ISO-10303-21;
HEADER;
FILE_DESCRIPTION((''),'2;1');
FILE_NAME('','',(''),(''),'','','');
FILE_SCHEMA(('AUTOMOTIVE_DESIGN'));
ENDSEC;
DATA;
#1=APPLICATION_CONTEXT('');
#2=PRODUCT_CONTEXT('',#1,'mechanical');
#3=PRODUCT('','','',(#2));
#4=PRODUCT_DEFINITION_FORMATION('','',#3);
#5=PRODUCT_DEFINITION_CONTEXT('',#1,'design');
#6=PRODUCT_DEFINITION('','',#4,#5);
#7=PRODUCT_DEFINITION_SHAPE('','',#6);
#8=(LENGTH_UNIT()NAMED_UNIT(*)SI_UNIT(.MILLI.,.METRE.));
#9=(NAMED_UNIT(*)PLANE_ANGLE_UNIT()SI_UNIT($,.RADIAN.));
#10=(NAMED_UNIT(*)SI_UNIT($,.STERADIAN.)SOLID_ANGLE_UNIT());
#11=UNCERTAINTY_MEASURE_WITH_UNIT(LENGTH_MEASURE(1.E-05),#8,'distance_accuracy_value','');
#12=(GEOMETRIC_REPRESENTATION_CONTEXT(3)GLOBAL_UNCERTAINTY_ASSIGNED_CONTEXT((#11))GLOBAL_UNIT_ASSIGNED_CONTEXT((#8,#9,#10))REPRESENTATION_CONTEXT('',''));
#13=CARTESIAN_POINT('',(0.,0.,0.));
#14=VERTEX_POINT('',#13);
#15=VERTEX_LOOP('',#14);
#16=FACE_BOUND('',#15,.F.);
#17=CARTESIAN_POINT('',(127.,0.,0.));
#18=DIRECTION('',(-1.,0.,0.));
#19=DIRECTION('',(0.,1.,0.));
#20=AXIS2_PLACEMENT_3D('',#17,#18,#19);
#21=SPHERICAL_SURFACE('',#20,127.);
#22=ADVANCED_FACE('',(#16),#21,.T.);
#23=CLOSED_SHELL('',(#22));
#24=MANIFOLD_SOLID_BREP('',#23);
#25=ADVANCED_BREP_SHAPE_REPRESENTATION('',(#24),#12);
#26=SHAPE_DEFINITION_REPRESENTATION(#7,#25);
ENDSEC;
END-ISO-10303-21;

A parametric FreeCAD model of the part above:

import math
import FreeCAD as App
import Part
import Sketcher
Q = App.Units.Quantity

doc = App.newDocument("Part")
params = doc.addObject("Spreadsheet::Sheet", "Params")
for row, (alias, value) in enumerate([
    ("sketch1_radius", "5 in"),
    ("revolution_angle", "360 deg"),
], start=1):
    params.set(f"A{row}", alias)
    params.set(f"B{row}", "=" + value)
    params.setAlias(f"B{row}", alias)

body = doc.addObject("PartDesign::Body", "Body")

sketch1 = doc.addObject("Sketcher::SketchObject", "Sketch")
body.addObject(sketch1)
sketch1.AttachmentSupport = (doc.XY_Plane, [""])
sketch1.MapMode = "FlatFace"
sketch1.addGeometry([
    Part.ArcOfCircle(Part.Circle(App.Vector(127, 0, 0), App.Vector(0, 0, 1), 127), math.radians(0), math.radians(180)),
    Part.LineSegment(App.Vector(0, 0, 0), App.Vector(254, 0, 0)),
], False)
sketch1.addConstraint([
    Sketcher.Constraint("Coincident", 0, 1, 1, 2),
    Sketcher.Constraint("Coincident", 1, 1, 0, 2),
    Sketcher.Constraint("Horizontal", 1),
    Sketcher.Constraint("Coincident", 1, 1, -1, 1),
    Sketcher.Constraint("PointOnObject", 0, 3, -1),
    Sketcher.Constraint("Radius", 0, Q("5 in")),
])
sketch1.setExpression("Constraints[5]", "Params.sketch1_radius")
revolution = doc.addObject("PartDesign::Revolution", "Revolution")
body.addObject(revolution)
revolution.Profile = sketch1
revolution.ReferenceAxis = (sketch1, ["H_Axis"])
revolution.setExpression("Angle", "Params.revolution_angle")

doc.recompute()
